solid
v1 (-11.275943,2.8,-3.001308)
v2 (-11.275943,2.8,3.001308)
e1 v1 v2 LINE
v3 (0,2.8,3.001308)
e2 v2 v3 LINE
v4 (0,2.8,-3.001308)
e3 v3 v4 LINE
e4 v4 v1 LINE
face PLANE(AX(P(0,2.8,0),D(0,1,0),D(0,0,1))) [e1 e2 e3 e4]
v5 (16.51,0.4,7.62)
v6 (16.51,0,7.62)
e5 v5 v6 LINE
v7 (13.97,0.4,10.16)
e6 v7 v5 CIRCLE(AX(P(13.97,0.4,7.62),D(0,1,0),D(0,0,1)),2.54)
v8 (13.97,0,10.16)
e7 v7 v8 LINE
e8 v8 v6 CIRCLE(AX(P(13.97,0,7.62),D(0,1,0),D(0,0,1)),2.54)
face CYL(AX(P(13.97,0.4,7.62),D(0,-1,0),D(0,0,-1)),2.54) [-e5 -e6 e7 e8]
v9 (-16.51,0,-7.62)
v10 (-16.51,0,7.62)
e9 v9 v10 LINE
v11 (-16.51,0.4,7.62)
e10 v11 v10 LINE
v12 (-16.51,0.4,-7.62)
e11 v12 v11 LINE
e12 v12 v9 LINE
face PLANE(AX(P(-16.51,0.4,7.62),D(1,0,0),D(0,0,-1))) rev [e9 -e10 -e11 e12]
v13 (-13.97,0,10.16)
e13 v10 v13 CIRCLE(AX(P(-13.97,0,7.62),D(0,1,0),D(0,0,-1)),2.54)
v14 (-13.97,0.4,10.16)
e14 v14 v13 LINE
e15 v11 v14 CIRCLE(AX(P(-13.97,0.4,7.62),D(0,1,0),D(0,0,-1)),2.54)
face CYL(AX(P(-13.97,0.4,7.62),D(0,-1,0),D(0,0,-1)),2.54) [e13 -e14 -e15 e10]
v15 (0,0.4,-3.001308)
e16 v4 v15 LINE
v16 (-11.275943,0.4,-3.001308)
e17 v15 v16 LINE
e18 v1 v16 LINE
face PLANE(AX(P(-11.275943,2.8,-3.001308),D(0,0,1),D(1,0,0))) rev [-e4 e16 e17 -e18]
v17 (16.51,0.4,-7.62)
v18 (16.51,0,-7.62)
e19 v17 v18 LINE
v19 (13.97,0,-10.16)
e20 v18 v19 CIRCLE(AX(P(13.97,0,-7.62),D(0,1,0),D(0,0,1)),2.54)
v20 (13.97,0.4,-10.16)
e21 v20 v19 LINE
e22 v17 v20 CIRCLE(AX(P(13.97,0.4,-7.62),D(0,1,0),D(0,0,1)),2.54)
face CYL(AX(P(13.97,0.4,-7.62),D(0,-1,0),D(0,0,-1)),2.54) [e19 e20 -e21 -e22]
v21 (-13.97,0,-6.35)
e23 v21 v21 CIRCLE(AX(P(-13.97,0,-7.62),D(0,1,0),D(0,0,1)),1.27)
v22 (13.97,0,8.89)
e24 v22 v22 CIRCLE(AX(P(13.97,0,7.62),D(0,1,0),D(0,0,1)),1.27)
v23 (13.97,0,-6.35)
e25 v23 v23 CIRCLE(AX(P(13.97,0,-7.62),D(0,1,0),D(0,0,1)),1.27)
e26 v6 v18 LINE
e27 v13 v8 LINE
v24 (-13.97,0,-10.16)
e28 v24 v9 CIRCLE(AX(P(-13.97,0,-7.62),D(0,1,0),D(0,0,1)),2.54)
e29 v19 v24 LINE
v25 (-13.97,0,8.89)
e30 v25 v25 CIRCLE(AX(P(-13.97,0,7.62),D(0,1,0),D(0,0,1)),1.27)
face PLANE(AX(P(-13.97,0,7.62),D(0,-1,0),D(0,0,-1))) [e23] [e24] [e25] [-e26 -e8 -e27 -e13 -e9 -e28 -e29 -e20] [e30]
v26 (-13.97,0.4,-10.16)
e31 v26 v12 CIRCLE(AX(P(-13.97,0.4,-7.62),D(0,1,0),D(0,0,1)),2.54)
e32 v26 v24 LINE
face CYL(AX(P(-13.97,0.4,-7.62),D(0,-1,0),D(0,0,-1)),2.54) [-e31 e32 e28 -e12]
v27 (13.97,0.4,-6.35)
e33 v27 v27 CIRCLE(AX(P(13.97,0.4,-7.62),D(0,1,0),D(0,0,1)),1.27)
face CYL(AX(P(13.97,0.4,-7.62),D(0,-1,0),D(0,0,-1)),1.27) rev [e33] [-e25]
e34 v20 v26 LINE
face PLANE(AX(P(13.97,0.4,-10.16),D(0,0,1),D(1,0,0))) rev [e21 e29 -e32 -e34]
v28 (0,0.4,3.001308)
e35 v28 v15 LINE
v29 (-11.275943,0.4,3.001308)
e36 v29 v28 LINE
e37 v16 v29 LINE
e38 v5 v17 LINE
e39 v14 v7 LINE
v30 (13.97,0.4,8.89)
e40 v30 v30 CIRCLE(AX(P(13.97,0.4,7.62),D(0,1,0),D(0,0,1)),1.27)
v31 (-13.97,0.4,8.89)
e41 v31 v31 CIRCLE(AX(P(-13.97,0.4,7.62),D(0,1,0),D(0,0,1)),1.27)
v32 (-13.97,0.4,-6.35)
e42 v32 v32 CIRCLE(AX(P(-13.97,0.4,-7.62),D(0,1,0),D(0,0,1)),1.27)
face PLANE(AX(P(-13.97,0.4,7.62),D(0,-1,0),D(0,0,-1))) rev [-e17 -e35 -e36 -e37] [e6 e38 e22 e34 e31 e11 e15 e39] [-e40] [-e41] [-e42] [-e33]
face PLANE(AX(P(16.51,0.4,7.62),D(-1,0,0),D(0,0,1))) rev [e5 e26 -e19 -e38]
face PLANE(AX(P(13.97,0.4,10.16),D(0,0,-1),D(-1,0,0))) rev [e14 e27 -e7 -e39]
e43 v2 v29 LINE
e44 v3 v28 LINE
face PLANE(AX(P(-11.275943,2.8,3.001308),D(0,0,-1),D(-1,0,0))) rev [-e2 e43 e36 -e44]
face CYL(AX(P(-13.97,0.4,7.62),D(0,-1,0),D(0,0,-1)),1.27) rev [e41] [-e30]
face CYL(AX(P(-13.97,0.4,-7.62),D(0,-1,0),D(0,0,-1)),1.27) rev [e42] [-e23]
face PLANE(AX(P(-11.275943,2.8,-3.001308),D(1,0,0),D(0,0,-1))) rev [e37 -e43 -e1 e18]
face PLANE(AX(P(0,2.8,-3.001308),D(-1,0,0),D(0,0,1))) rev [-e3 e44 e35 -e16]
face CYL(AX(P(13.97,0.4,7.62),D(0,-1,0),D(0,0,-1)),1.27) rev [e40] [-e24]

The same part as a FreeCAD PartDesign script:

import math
import FreeCAD as App
import Part
import Sketcher

V = App.Vector
Q = App.Units.Quantity

doc = App.newDocument("Part")
body = doc.addObject("PartDesign::Body", "Body")

# Sketch on XZ plane
sketch1 = doc.addObject("Sketcher::SketchObject", "Sketch")
body.addObject(sketch1)
sketch1.AttachmentSupport = (doc.XZ_Plane, [""])
sketch1.MapMode = "FlatFace"
sketch1.addGeometry(Part.LineSegment(V(-14, 10.2, 0), V(14, 10.2, 0)), False)
sketch1.addGeometry(Part.ArcOfCircle(Part.Circle(V(14, 7.6, 0), V(0, 0, 1), 2.5), math.radians(0), math.radians(90)), False)
sketch1.addGeometry(Part.LineSegment(V(16.5, 7.6, 0), V(16.5, -7.6, 0)), False)
sketch1.addGeometry(Part.ArcOfCircle(Part.Circle(V(14, -7.6, 0), V(0, 0, 1), 2.5), math.radians(-90), math.radians(0)), False)
sketch1.addGeometry(Part.LineSegment(V(14, -10.2, 0), V(-14, -10.2, 0)), False)
sketch1.addGeometry(Part.ArcOfCircle(Part.Circle(V(-14, -7.6, 0), V(0, 0, 1), 2.5), math.radians(-180), math.radians(-90)), False)
sketch1.addGeometry(Part.LineSegment(V(-16.5, -7.6, 0), V(-16.5, 7.6, 0)), False)
sketch1.addGeometry(Part.ArcOfCircle(Part.Circle(V(-14, 7.6, 0), V(0, 0, 1), 2.5), math.radians(90), math.radians(180)), False)
sketch1.addGeometry(Part.Circle(V(14, 7.6, 0), V(0, 0, 1), 1.3), False)
sketch1.addGeometry(Part.Circle(V(-14, 7.6, 0), V(0, 0, 1), 1.3), False)
sketch1.addGeometry(Part.Circle(V(14, -7.6, 0), V(0, 0, 1), 1.3), False)
sketch1.addGeometry(Part.Circle(V(-14, -7.6, 0), V(0, 0, 1), 1.3), False)
sketch1.addConstraint(Sketcher.Constraint("Tangent", 0, 2, 1, 2))
sketch1.addConstraint(Sketcher.Constraint("Tangent", 1, 1, 2, 1))
sketch1.addConstraint(Sketcher.Constraint("Tangent", 2, 2, 3, 2))
sketch1.addConstraint(Sketcher.Constraint("Tangent", 3, 1, 4, 1))
sketch1.addConstraint(Sketcher.Constraint("Tangent", 4, 2, 5, 2))
sketch1.addConstraint(Sketcher.Constraint("Tangent", 5, 1, 6, 1))
sketch1.addConstraint(Sketcher.Constraint("Tangent", 6, 2, 7, 2))
sketch1.addConstraint(Sketcher.Constraint("Tangent", 7, 1, 0, 1))
sketch1.addConstraint(Sketcher.Constraint("Horizontal", 0))
sketch1.addConstraint(Sketcher.Constraint("Vertical", 2))
sketch1.addConstraint(Sketcher.Constraint("Horizontal", 4))
sketch1.addConstraint(Sketcher.Constraint("Vertical", 6))
sketch1.addConstraint(Sketcher.Constraint("Coincident", 8, 3, 1, 3))
sketch1.addConstraint(Sketcher.Constraint("Coincident", 9, 3, 7, 3))
sketch1.addConstraint(Sketcher.Constraint("Coincident", 10, 3, 3, 3))
sketch1.addConstraint(Sketcher.Constraint("Coincident", 11, 3, 5, 3))
sketch1.addConstraint(Sketcher.Constraint("Equal", 1, 3))
sketch1.addConstraint(Sketcher.Constraint("Equal", 3, 5))
sketch1.addConstraint(Sketcher.Constraint("Equal", 5, 7))
sketch1.addConstraint(Sketcher.Constraint("Equal", 8, 9))
sketch1.addConstraint(Sketcher.Constraint("Equal", 9, 10))
sketch1.addConstraint(Sketcher.Constraint("Equal", 10, 11))
sketch1.addConstraint(Sketcher.Constraint("Symmetric", 1, 3, 5, 3, -1, 1))
sketch1.addConstraint(Sketcher.Constraint("Diameter", 8, Q("0.1 in")))
sketch1.addConstraint(Sketcher.Constraint("Radius", 1, Q("0.1 in")))
sketch1.addConstraint(Sketcher.Constraint("DistanceX", 0, 1, 0, 2, Q("1.1 in")))
sketch1.addConstraint(Sketcher.Constraint("DistanceY", 2, 2, 2, 1, Q("0.6 in")))
pad1 = doc.addObject("PartDesign::Pad", "Pad")
body.addObject(pad1)
pad1.Profile = sketch1
pad1.Length = 0.4
pad1.Reversed = True

# Sketch on XZ plane
sketch2 = doc.addObject("Sketcher::SketchObject", "Sketch001")
body.addObject(sketch2)
sketch2.AttachmentSupport = (doc.XZ_Plane, [""])
sketch2.MapMode = "FlatFace"
sketch2.AttachmentOffset = App.Placement(V(0, 0, -0.4), App.Rotation())
sketch2.addGeometry(Part.LineSegment(V(-11, -3, 0), V(-11, 3, 0)), False)
sketch2.addGeometry(Part.LineSegment(V(-11, 3, 0), V(0, 3, 0)), False)
sketch2.addGeometry(Part.LineSegment(V(0, 3, 0), V(0, -3, 0)), False)
sketch2.addGeometry(Part.LineSegment(V(0, -3, 0), V(-11, -3, 0)), False)
sketch2.addConstraint(Sketcher.Constraint("Coincident", 0, 2, 1, 1))
sketch2.addConstraint(Sketcher.Constraint("Coincident", 1, 2, 2, 1))
sketch2.addConstraint(Sketcher.Constraint("Coincident", 2, 2, 3, 1))
sketch2.addConstraint(Sketcher.Constraint("Coincident", 3, 2, 0, 1))
sketch2.addConstraint(Sketcher.Constraint("Vertical", 0))
sketch2.addConstraint(Sketcher.Constraint("Horizontal", 1))
sketch2.addConstraint(Sketcher.Constraint("Vertical", 2))
sketch2.addConstraint(Sketcher.Constraint("Horizontal", 3))
sketch2.addConstraint(Sketcher.Constraint("Symmetric", 1, 2, 2, 2, -1, 1))
sketch2.addConstraint(Sketcher.Constraint("DistanceX", 1, 1, 1, 2, 11.275943))
sketch2.addConstraint(Sketcher.Constraint("DistanceY", 0, 1, 0, 2, 6.002616))
pad2 = doc.addObject("PartDesign::Pad", "Pad001")
body.addObject(pad2)
pad2.Profile = sketch2
pad2.Length = 2.4
pad2.Reversed = True

doc.recompute()
